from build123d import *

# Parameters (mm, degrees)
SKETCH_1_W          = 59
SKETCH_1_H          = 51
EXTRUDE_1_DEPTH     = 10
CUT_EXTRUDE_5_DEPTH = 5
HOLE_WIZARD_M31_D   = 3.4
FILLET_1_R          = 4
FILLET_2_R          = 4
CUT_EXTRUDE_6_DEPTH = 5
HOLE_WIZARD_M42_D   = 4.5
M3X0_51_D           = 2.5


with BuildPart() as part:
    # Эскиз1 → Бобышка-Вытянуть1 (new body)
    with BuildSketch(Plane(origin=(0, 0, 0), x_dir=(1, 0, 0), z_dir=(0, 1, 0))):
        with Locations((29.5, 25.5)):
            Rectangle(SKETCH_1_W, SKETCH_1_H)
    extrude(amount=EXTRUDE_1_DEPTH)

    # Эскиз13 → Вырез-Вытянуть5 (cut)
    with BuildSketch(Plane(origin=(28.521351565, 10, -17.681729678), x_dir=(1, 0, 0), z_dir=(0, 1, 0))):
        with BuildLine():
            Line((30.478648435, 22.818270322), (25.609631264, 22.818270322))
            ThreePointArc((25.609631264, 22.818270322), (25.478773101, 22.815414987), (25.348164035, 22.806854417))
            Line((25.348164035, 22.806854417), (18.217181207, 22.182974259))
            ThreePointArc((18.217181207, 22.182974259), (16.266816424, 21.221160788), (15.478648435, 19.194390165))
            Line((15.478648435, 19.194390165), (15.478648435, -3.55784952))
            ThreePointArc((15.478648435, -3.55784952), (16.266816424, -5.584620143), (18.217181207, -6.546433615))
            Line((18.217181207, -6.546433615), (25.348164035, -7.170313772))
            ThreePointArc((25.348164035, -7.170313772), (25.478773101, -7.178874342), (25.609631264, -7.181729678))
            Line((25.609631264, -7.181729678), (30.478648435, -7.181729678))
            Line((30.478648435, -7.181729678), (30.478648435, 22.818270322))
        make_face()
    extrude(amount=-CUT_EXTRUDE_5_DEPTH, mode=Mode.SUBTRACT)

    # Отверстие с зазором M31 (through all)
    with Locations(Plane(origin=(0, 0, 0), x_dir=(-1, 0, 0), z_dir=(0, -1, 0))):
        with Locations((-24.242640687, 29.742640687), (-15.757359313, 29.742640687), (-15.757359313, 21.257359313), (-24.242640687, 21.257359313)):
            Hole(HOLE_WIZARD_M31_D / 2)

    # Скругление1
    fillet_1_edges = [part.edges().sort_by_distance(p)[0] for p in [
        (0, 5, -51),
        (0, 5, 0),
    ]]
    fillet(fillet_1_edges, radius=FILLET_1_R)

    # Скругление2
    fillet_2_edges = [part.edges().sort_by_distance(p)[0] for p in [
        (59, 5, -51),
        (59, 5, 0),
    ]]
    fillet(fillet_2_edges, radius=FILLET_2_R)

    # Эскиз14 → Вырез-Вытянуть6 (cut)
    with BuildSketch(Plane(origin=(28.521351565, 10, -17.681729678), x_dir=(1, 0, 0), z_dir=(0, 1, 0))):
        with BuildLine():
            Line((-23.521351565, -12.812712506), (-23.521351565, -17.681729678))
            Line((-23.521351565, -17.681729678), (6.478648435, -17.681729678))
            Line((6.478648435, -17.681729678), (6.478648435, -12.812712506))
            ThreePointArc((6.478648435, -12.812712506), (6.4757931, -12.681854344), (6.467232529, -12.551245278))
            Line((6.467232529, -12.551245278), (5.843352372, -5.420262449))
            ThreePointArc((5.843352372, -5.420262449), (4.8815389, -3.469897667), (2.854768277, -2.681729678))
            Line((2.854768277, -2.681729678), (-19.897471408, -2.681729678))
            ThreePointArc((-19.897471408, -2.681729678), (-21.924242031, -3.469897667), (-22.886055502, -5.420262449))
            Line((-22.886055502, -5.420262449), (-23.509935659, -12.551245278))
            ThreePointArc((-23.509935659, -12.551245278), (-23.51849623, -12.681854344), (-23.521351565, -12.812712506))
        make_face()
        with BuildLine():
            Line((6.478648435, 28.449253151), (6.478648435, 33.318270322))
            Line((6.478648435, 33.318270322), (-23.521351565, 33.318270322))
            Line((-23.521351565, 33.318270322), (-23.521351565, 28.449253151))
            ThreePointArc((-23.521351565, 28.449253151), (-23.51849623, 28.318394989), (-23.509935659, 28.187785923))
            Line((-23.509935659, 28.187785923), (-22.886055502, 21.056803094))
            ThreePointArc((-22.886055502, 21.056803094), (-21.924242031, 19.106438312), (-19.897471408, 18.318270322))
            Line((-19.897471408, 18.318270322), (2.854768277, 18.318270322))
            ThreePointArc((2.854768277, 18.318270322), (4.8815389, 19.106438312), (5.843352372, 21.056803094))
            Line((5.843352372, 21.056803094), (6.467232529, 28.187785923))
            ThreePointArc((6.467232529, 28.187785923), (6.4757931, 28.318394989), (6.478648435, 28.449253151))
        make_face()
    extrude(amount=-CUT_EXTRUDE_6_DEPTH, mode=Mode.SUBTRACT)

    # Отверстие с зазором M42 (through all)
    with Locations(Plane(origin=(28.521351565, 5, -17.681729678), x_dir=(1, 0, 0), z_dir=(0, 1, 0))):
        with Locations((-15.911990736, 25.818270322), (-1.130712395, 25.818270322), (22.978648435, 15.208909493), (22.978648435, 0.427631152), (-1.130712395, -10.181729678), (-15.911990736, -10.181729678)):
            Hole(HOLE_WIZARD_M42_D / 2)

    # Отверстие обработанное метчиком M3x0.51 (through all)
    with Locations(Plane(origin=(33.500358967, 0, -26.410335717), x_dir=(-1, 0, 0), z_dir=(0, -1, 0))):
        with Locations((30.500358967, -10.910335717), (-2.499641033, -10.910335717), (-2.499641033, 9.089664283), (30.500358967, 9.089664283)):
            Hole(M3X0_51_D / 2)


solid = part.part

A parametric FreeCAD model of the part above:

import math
import FreeCAD as App
import Part
import Sketcher
from FreeCAD import Vector
Q = App.Units.Quantity


def edges_at(feature, points):
    """Names of the edges that pass closest to the given points."""
    edges = feature.Shape.Edges
    near = lambda p: min(range(len(edges)), key=lambda i: edges[i].distToShape(Part.Vertex(*p))[0])
    return sorted({f"Edge{near(p) + 1}" for p in points})


def add_polygon(sketch, points):
    """Adds a closed chain of lines whose ends are joined by coincident constraints."""
    first, n = sketch.GeometryCount, len(points)
    for a, b in zip(points, points[1:] + points[:1]):
        sketch.addGeometry(Part.LineSegment(App.Vector(*a, 0), App.Vector(*b, 0)), False)
    for i in range(n):
        sketch.addConstraint(Sketcher.Constraint("Coincident", first + i, 2, first + (i + 1) % n, 1))

doc = App.newDocument("Part")
body = doc.addObject("PartDesign::Body", "Body")

# Sketch on XZ plane
sketch1 = doc.addObject("Sketcher::SketchObject", "Sketch")
body.addObject(sketch1)
sketch1.AttachmentSupport = (doc.XZ_Plane, [""])
sketch1.MapMode = "FlatFace"
add_polygon(sketch1, [(0, -51), (0, 0), (59, 0), (59, -51)])  # lines 0-3
sketch1.addConstraint([
    Sketcher.Constraint("Vertical", 0),
    Sketcher.Constraint("Horizontal", 1),
    Sketcher.Constraint("Vertical", 2),
    Sketcher.Constraint("Horizontal", 3),
    Sketcher.Constraint("Coincident", 0, 2, -1, 1),
    Sketcher.Constraint("DistanceX", 1, 1, 1, 2, 59.0),
    Sketcher.Constraint("DistanceY", 0, 1, 0, 2, 51.0),
])
pad1 = doc.addObject("PartDesign::Pad", "Pad")
body.addObject(pad1)
pad1.Profile = sketch1
pad1.Length = 10
pad1.Reversed = True

# Sketch on XZ plane
sketch2 = doc.addObject("Sketcher::SketchObject", "Sketch001")
body.addObject(sketch2)
sketch2.AttachmentSupport = (doc.XZ_Plane, [""])
sketch2.MapMode = "FlatFace"
sketch2.AttachmentOffset = App.Placement(Vector(0, 0, -10), App.Rotation())
sketch2.addGeometry([
    Part.LineSegment(Vector(59, -40.5, 0), Vector(54.13, -40.5, 0)),  # 0
    Part.ArcOfCircle(Part.Circle(Vector(54.13, -37.5, 0), Vector(0, 0, 1), 3), math.radians(-95), math.radians(-90)),  # 1
    Part.LineSegment(Vector(53.87, -40.49, 0), Vector(46.74, -39.86, 0)),  # 2
    Part.ArcOfCircle(Part.Circle(Vector(47, -36.88, 0), Vector(0, 0, 1), 3), math.radians(180), math.radians(265)),  # 3
    Part.LineSegment(Vector(44, -36.88, 0), Vector(44, -14.12, 0)),  # 4
    Part.ArcOfCircle(Part.Circle(Vector(47, -14.12, 0), Vector(0, 0, 1), 3), math.radians(95), math.radians(180)),  # 5
    Part.LineSegment(Vector(46.74, -11.14, 0), Vector(53.87, -10.51, 0)),  # 6
    Part.ArcOfCircle(Part.Circle(Vector(54.13, -13.5, 0), Vector(0, 0, 1), 3), math.radians(90), math.radians(95)),  # 7
    Part.LineSegment(Vector(54.13, -10.5, 0), Vector(59, -10.5, 0)),  # 8
    Part.LineSegment(Vector(59, -10.5, 0), Vector(59, -40.5, 0)),  # 9
], False)
sketch2.addConstraint([
    Sketcher.Constraint("Tangent", 0, 2, 1, 2),
    Sketcher.Constraint("Tangent", 1, 1, 2, 1),
    Sketcher.Constraint("Tangent", 2, 2, 3, 2),
    Sketcher.Constraint("Tangent", 3, 1, 4, 1),
    Sketcher.Constraint("Tangent", 4, 2, 5, 2),
    Sketcher.Constraint("Tangent", 5, 1, 6, 1),
    Sketcher.Constraint("Tangent", 6, 2, 7, 2),
    Sketcher.Constraint("Tangent", 7, 1, 8, 1),
    Sketcher.Constraint("Coincident", 8, 2, 9, 1),
    Sketcher.Constraint("Coincident", 9, 2, 0, 1),
    Sketcher.Constraint("Horizontal", 0),
    Sketcher.Constraint("Vertical", 4),
    Sketcher.Constraint("Horizontal", 8),
    Sketcher.Constraint("Vertical", 9),
    Sketcher.Constraint("Equal", 1, 3),
    Sketcher.Constraint("Equal", 3, 5),
    Sketcher.Constraint("Equal", 5, 7),
    Sketcher.Constraint("Vertical", 1, 3, 7, 3),
    Sketcher.Constraint("Vertical", 2, 2, 5, 1),
    Sketcher.Constraint("Radius", 1, 3.0),
    Sketcher.Constraint("DistanceY", 9, 2, 9, 1, 30.0),
    Sketcher.Constraint("Angle", 2, Q("175 deg")),
    Sketcher.Constraint("DistanceX", -1, 1, 3, 3, 47.0),
    Sketcher.Constraint("DistanceX", -1, 1, 8, 2, 59.0),
    Sketcher.Constraint("DistanceY", 1, 3, -1, 1, 37.5),
    Sketcher.Constraint("DistanceY", 4, 1, 4, 2, 22.75224),
])
pocket1 = doc.addObject("PartDesign::Pocket", "Pocket")
body.addObject(pocket1)
pocket1.Profile = sketch2
pocket1.Length = 5
pocket1.Reversed = True

# Sketch on XZ plane
sketch3 = doc.addObject("Sketcher::SketchObject", "Sketch002")
body.addObject(sketch3)
sketch3.AttachmentSupport = (doc.XZ_Plane, [""])
sketch3.MapMode = "FlatFace"
sketch3.addGeometry([
    Part.Circle(Vector(24.2, -29.7, 0), Vector(0, 0, 1), 1.7),
    Part.Circle(Vector(15.8, -29.7, 0), Vector(0, 0, 1), 1.7),
    Part.Circle(Vector(15.8, -21.3, 0), Vector(0, 0, 1), 1.7),
    Part.Circle(Vector(24.2, -21.3, 0), Vector(0, 0, 1), 1.7),
], False)
sketch3.addConstraint([
    Sketcher.Constraint("Equal", 0, 1),
    Sketcher.Constraint("Equal", 1, 2),
    Sketcher.Constraint("Equal", 2, 3),
    Sketcher.Constraint("Horizontal", 0, 3, 1, 3),
    Sketcher.Constraint("Horizontal", 2, 3, 3, 3),
    Sketcher.Constraint("Vertical", 1, 3, 2, 3),
    Sketcher.Constraint("Vertical", 0, 3, 3, 3),
    Sketcher.Constraint("Diameter", 0, 3.4),
    Sketcher.Constraint("DistanceX", -1, 1, 0, 3, 24.242641),
    Sketcher.Constraint("DistanceY", 0, 3, -1, 1, 29.742641),
    Sketcher.Constraint("DistanceX", -1, 1, 1, 3, 15.757359),
    Sketcher.Constraint("DistanceY", 2, 3, -1, 1, 21.257359),
])
doc.recompute()
hole = doc.addObject("PartDesign::Hole", "Hole")
body.addObject(hole)
hole.Profile = sketch3
hole.ThreadType = "None"
hole.Diameter = 3.4
hole.DepthType = "ThroughAll"
doc.recompute()

fillet = doc.addObject("PartDesign::Fillet", "Fillet")
body.addObject(fillet)
fillet.Base = (hole, edges_at(hole, [(0, 5, -51), (0, 5, 0)]))
fillet.Radius = 4
doc.recompute()

fillet2 = doc.addObject("PartDesign::Fillet", "Fillet001")
body.addObject(fillet2)
fillet2.Base = (fillet, edges_at(fillet, [(59, 5, -51), (59, 5, 0)]))
fillet2.Radius = 4

# Sketch on XZ plane
sketch4 = doc.addObject("Sketcher::SketchObject", "Sketch003")
body.addObject(sketch4)
sketch4.AttachmentSupport = (doc.XZ_Plane, [""])
sketch4.MapMode = "FlatFace"
sketch4.AttachmentOffset = App.Placement(Vector(0, 0, -10), App.Rotation())
sketch4.addGeometry([
    Part.LineSegment(Vector(5, -4.87, 0), Vector(5, 0, 0)),  # 0
    Part.LineSegment(Vector(5, 0, 0), Vector(35, 0, 0)),  # 1
    Part.LineSegment(Vector(35, 0, 0), Vector(35, -4.87, 0)),  # 2
    Part.ArcOfCircle(Part.Circle(Vector(32, -4.87, 0), Vector(0, 0, 1), 3), math.radians(-5), math.radians(0)),  # 3
    Part.LineSegment(Vector(34.99, -5.13, 0), Vector(34.36, -12.26, 0)),  # 4
    Part.ArcOfCircle(Part.Circle(Vector(31.38, -12, 0), Vector(0, 0, 1), 3), math.radians(-90), math.radians(-5)),  # 5
    Part.LineSegment(Vector(31.38, -15, 0), Vector(8.62, -15, 0)),  # 6
    Part.ArcOfCircle(Part.Circle(Vector(8.62, -12, 0), Vector(0, 0, 1), 3), math.radians(-175), math.radians(-90)),  # 7
    Part.LineSegment(Vector(5.64, -12.26, 0), Vector(5.01, -5.13, 0)),  # 8
    Part.ArcOfCircle(Part.Circle(Vector(8, -4.87, 0), Vector(0, 0, 1), 3), math.radians(180), math.radians(185)),  # 9
    Part.LineSegment(Vector(35, -46.13, 0), Vector(35, -51, 0)),  # 10
    Part.LineSegment(Vector(35, -51, 0), Vector(5, -51, 0)),  # 11
    Part.LineSegment(Vector(5, -51, 0), Vector(5, -46.13, 0)),  # 12
    Part.ArcOfCircle(Part.Circle(Vector(8, -46.13, 0), Vector(0, 0, 1), 3), math.radians(175), math.radians(180)),  # 13
    Part.LineSegment(Vector(5.01, -45.87, 0), Vector(5.64, -38.74, 0)),  # 14
    Part.ArcOfCircle(Part.Circle(Vector(8.62, -39, 0), Vector(0, 0, 1), 3), math.radians(90), math.radians(175)),  # 15
    Part.LineSegment(Vector(8.62, -36, 0), Vector(31.38, -36, 0)),  # 16
    Part.ArcOfCircle(Part.Circle(Vector(31.38, -39, 0), Vector(0, 0, 1), 3), math.radians(5), math.radians(90)),  # 17
    Part.LineSegment(Vector(34.36, -38.74, 0), Vector(34.99, -45.87, 0)),  # 18
    Part.ArcOfCircle(Part.Circle(Vector(32, -46.13, 0), Vector(0, 0, 1), 3), math.radians(0), math.radians(5)),  # 19
], False)
sketch4.addConstraint([
    Sketcher.Constraint("Coincident", 0, 2, 1, 1),
    Sketcher.Constraint("Coincident", 1, 2, 2, 1),
    Sketcher.Constraint("Tangent", 2, 2, 3, 2),
    Sketcher.Constraint("Tangent", 3, 1, 4, 1),
    Sketcher.Constraint("Tangent", 4, 2, 5, 2),
    Sketcher.Constraint("Tangent", 5, 1, 6, 1),
    Sketcher.Constraint("Tangent", 6, 2, 7, 2),
    Sketcher.Constraint("Tangent", 7, 1, 8, 1),
    Sketcher.Constraint("Tangent", 8, 2, 9, 2),
    Sketcher.Constraint("Tangent", 9, 1, 0, 1),
    Sketcher.Constraint("Coincident", 10, 2, 11, 1),
    Sketcher.Constraint("Coincident", 11, 2, 12, 1),
    Sketcher.Constraint("Tangent", 12, 2, 13, 2),
    Sketcher.Constraint("Tangent", 13, 1, 14, 1),
    Sketcher.Constraint("Tangent", 14, 2, 15, 2),
    Sketcher.Constraint("Tangent", 15, 1, 16, 1),
    Sketcher.Constraint("Tangent", 16, 2, 17, 2),
    Sketcher.Constraint("Tangent", 17, 1, 18, 1),
    Sketcher.Constraint("Tangent", 18, 2, 19, 2),
    Sketcher.Constraint("Tangent", 19, 1, 10, 1),
    Sketcher.Constraint("Vertical", 0),
    Sketcher.Constraint("Horizontal", 1),
    Sketcher.Constraint("Vertical", 2),
    Sketcher.Constraint("Horizontal", 6),
    Sketcher.Constraint("Vertical", 10),
    Sketcher.Constraint("Horizontal", 11),
    Sketcher.Constraint("Vertical", 12),
    Sketcher.Constraint("Horizontal", 16),
    Sketcher.Constraint("Equal", 3, 5),
    Sketcher.Constraint("Equal", 5, 7),
    Sketcher.Constraint("Equal", 7, 9),
    Sketcher.Constraint("Equal", 9, 13),
    Sketcher.Constraint("Equal", 13, 15),
    Sketcher.Constraint("Equal", 15, 17),
    Sketcher.Constraint("Equal", 17, 19),
    Sketcher.Constraint("PointOnObject", 0, 2, -1),
    Sketcher.Constraint("Parallel", 4, 14),
    Sketcher.Constraint("Parallel", 8, 18),
    Sketcher.Constraint("Horizontal", 3, 3, 9, 3),
    Sketcher.Constraint("Horizontal", 13, 3, 19, 3),
    Sketcher.Constraint("Horizontal", 4, 2, 7, 1),
    Sketcher.Constraint("Vertical", 9, 3, 13, 3),
    Sketcher.Constraint("Vertical", 7, 3, 15, 3),
    Sketcher.Constraint("Vertical", 5, 3, 17, 3),
    Sketcher.Constraint("Equal", 2, 10),
    Sketcher.Constraint("Radius", 3, 3.0),
    Sketcher.Constraint("DistanceX", 1, 1, 1, 2, 30.0),
    Sketcher.Constraint("Angle", 4, Q("-95 deg")),
    Sketcher.Constraint("DistanceX", -1, 1, 3, 3, 32.0),
    Sketcher.Constraint("DistanceY", 5, 3, -1, 1, 12.0),
    Sketcher.Constraint("DistanceY", 15, 3, -1, 1, 39.0),
    Sketcher.Constraint("DistanceX", 6, 2, 6, 1, 22.75224),
])
pocket2 = doc.addObject("PartDesign::Pocket", "Pocket001")
body.addObject(pocket2)
pocket2.Profile = sketch4
pocket2.Length = 5
pocket2.Reversed = True

# Sketch on XZ plane
sketch5 = doc.addObject("Sketcher::SketchObject", "Sketch004")
body.addObject(sketch5)
sketch5.AttachmentSupport = (doc.XZ_Plane, [""])
sketch5.MapMode = "FlatFace"
sketch5.AttachmentOffset = App.Placement(Vector(0, 0, -5), App.Rotation())
sketch5.addGeometry([
    Part.Circle(Vector(12.6, -43.5, 0), Vector(0, 0, 1), 2.2),  # 0
    Part.Circle(Vector(27.4, -43.5, 0), Vector(0, 0, 1), 2.2),  # 1
    Part.Circle(Vector(51.5, -32.9, 0), Vector(0, 0, 1), 2.2),  # 2
    Part.Circle(Vector(51.5, -18.1, 0), Vector(0, 0, 1), 2.2),  # 3
    Part.Circle(Vector(27.4, -7.5, 0), Vector(0, 0, 1), 2.2),  # 4
    Part.Circle(Vector(12.6, -7.5, 0), Vector(0, 0, 1), 2.2),  # 5
], False)
sketch5.addConstraint([
    Sketcher.Constraint("Equal", 0, 1),
    Sketcher.Constraint("Equal", 1, 2),
    Sketcher.Constraint("Equal", 2, 3),
    Sketcher.Constraint("Equal", 3, 4),
    Sketcher.Constraint("Equal", 4, 5),
    Sketcher.Constraint("Horizontal", 0, 3, 1, 3),
    Sketcher.Constraint("Horizontal", 4, 3, 5, 3),
    Sketcher.Constraint("Vertical", 2, 3, 3, 3),
    Sketcher.Constraint("Vertical", 1, 3, 4, 3),
    Sketcher.Constraint("Vertical", 0, 3, 5, 3),
    Sketcher.Constraint("Diameter", 0, 4.5),
    Sketcher.Constraint("DistanceY", 1, 3, 4, 3, 36.0),
    Sketcher.Constraint("DistanceY", 0, 3, -1, 1, 43.5),
    Sketcher.Constraint("DistanceX", -1, 1, 2, 3, 51.5),
    Sketcher.Constraint("DistanceX", -1, 1, 0, 3, 12.609361),
    Sketcher.Constraint("DistanceX", -1, 1, 1, 3, 27.390639),
    Sketcher.Constraint("DistanceY", 2, 3, -1, 1, 32.890639),
    Sketcher.Constraint("DistanceY", 3, 3, -1, 1, 18.109361),
])
doc.recompute()
hole2 = doc.addObject("PartDesign::Hole", "Hole001")
body.addObject(hole2)
hole2.Profile = sketch5
hole2.ThreadType = "None"
hole2.Diameter = 4.5
hole2.DepthType = "ThroughAll"
hole2.Reversed = True

# Sketch on XZ plane
sketch6 = doc.addObject("Sketcher::SketchObject", "Sketch005")
body.addObject(sketch6)
sketch6.AttachmentSupport = (doc.XZ_Plane, [""])
sketch6.MapMode = "FlatFace"
sketch6.addGeometry([
    Part.Circle(Vector(3, -15.5, 0), Vector(0, 0, 1), 1.2),
    Part.Circle(Vector(36, -15.5, 0), Vector(0, 0, 1), 1.2),
    Part.Circle(Vector(36, -35.5, 0), Vector(0, 0, 1), 1.2),
    Part.Circle(Vector(3, -35.5, 0), Vector(0, 0, 1), 1.2),
], False)
sketch6.addConstraint([
    Sketcher.Constraint("Equal", 0, 1),
    Sketcher.Constraint("Equal", 1, 2),
    Sketcher.Constraint("Equal", 2, 3),
    Sketcher.Constraint("Horizontal", 0, 3, 1, 3),
    Sketcher.Constraint("Horizontal", 2, 3, 3, 3),
    Sketcher.Constraint("Vertical", 1, 3, 2, 3),
    Sketcher.Constraint("Vertical", 0, 3, 3, 3),
    Sketcher.Constraint("Diameter", 0, 2.5),
    Sketcher.Constraint("DistanceX", -1, 1, 0, 3, 3.0),
    Sketcher.Constraint("DistanceX", -1, 1, 1, 3, 36.0),
    Sketcher.Constraint("DistanceY", 2, 3, 1, 3, 20.0),
    Sketcher.Constraint("DistanceY", 0, 3, -1, 1, 15.5),
])
doc.recompute()
hole3 = doc.addObject("PartDesign::Hole", "Hole002")
body.addObject(hole3)
hole3.Profile = sketch6
hole3.ThreadType = "None"
hole3.Diameter = 2.5
hole3.DepthType = "ThroughAll"

doc.recompute()
